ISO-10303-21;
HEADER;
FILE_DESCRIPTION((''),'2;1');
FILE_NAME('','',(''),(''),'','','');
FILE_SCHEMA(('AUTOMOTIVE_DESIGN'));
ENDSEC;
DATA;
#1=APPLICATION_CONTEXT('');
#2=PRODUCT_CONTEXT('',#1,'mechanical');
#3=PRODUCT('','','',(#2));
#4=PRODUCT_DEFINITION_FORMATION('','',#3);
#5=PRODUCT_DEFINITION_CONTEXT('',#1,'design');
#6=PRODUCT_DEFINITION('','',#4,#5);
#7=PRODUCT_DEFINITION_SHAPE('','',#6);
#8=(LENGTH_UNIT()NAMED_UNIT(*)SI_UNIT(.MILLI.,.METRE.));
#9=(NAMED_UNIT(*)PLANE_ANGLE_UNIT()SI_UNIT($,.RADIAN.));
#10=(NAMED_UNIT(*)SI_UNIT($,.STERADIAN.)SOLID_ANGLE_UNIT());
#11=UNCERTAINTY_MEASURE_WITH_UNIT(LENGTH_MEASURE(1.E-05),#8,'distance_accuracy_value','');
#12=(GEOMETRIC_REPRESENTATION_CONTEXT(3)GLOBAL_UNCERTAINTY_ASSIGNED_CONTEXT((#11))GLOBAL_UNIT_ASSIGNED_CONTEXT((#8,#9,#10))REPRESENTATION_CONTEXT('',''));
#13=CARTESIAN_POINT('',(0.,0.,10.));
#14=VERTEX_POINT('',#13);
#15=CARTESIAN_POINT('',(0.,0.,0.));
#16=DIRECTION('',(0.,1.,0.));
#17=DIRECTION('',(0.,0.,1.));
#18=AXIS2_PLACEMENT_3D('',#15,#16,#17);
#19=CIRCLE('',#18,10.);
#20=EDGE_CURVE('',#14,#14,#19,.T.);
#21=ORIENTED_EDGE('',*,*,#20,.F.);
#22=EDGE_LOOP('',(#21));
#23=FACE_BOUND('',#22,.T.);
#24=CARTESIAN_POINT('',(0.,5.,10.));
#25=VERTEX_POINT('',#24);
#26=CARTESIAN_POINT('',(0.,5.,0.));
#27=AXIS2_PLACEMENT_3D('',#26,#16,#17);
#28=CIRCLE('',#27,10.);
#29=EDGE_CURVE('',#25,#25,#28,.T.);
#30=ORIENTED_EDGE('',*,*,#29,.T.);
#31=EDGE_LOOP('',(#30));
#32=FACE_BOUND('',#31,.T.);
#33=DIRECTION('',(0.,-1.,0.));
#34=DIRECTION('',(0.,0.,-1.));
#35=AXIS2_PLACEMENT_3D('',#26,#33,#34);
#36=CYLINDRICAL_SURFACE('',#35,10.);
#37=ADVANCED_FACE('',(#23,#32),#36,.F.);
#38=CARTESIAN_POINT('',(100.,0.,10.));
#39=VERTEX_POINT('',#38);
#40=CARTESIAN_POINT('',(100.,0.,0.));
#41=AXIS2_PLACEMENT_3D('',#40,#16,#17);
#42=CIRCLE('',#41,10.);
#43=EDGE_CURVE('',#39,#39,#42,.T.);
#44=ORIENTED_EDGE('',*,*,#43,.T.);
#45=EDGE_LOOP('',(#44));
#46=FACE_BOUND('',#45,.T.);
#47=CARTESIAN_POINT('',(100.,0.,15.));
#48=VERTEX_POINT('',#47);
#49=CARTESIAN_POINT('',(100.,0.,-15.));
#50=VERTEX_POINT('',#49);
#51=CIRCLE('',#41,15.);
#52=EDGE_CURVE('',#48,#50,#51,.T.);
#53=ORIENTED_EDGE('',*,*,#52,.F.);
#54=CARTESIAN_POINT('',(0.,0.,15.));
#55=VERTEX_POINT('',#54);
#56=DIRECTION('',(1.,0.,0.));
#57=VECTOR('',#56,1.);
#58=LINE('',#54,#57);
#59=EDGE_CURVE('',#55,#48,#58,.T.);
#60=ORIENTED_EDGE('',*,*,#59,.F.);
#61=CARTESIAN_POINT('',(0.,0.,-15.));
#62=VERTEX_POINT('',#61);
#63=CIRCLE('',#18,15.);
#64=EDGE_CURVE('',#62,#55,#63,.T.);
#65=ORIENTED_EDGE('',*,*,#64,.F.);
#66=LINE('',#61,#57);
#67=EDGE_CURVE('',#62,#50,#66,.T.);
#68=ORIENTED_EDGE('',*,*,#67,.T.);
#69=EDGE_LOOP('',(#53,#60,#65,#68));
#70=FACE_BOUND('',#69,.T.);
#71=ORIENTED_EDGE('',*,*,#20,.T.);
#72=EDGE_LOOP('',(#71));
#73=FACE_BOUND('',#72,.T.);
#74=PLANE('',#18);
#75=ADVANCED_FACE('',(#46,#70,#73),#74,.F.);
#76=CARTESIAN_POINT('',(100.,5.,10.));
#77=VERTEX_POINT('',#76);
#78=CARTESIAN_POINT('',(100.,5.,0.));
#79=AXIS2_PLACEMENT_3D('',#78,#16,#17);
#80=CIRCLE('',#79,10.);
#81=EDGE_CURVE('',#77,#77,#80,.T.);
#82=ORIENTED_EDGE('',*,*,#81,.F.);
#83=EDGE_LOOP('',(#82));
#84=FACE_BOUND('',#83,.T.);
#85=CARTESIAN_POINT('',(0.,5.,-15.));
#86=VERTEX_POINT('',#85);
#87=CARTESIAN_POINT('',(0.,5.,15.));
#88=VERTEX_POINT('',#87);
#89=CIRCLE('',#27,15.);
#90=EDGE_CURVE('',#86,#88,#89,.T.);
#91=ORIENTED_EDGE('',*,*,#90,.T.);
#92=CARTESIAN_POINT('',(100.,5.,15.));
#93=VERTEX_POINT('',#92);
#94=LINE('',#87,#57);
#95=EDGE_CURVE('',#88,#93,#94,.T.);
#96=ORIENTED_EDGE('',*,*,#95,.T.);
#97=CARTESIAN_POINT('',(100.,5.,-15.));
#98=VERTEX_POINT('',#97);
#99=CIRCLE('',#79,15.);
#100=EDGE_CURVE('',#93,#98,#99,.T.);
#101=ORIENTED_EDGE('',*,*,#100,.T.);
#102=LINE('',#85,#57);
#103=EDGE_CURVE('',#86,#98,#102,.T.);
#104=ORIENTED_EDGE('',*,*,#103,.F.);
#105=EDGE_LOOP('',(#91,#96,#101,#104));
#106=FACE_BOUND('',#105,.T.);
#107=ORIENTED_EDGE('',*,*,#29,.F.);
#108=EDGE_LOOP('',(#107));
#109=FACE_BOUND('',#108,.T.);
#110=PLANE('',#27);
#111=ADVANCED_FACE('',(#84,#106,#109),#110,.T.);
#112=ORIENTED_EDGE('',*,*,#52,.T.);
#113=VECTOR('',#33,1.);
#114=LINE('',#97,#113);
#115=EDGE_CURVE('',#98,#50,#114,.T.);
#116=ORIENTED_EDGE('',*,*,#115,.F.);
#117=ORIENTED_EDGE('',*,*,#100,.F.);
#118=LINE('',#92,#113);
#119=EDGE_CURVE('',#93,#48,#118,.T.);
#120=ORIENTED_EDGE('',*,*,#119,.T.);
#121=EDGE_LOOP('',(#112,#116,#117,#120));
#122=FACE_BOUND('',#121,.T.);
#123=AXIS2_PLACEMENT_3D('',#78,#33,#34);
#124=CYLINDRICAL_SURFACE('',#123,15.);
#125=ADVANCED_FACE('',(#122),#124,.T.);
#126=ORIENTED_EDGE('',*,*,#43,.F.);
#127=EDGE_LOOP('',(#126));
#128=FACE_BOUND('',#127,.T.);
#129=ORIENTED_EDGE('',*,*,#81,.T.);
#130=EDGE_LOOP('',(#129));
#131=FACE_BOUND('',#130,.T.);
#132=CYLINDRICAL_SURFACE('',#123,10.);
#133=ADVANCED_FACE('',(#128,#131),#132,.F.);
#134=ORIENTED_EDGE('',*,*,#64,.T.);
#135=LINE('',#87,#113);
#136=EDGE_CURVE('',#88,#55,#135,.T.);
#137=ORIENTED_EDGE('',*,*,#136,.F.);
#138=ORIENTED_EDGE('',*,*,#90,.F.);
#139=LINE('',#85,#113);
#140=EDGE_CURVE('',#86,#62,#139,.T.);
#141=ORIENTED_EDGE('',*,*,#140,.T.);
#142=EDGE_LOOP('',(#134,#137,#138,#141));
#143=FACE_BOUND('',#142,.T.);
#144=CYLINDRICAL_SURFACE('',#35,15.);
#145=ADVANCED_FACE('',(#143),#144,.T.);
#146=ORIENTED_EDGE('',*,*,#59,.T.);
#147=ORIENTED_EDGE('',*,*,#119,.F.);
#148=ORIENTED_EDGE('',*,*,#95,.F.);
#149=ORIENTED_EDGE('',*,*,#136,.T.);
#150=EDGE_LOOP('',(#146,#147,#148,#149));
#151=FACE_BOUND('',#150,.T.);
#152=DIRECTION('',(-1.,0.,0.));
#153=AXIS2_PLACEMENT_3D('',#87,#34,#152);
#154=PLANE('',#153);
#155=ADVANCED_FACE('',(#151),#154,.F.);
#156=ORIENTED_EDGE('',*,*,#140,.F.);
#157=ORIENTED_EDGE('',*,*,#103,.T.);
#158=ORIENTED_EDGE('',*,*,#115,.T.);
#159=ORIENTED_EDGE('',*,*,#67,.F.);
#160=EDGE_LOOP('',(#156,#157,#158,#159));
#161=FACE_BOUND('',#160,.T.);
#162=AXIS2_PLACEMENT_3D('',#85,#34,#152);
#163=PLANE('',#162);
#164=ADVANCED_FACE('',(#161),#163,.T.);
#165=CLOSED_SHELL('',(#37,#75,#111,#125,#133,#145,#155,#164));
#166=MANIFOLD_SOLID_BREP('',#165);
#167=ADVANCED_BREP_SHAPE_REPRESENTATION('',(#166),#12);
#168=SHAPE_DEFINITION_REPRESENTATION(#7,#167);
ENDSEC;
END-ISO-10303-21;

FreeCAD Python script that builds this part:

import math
import FreeCAD as App
import Part
import Sketcher

V = App.Vector
Q = App.Units.Quantity

doc = App.newDocument("Part")
body = doc.addObject("PartDesign::Body", "Body")

sketch1 = body.newObject("Sketcher::SketchObject", "Sketch")
sketch1.AttachmentSupport = (doc.getObject("XZ_Plane"), [""])
sketch1.MapMode = "FlatFace"
sketch1.addGeometry([
    Part.LineSegment(V(0, 15, 0), V(100, 15, 0)),
    Part.ArcOfCircle(Part.Circle(V(100, 0, 0), V(0, 0, 1), 15), math.radians(-90), math.radians(90)),
    Part.LineSegment(V(100, -15, 0), V(0, -15, 0)),
    Part.ArcOfCircle(Part.Circle(V(0, 0, 0), V(0, 0, 1), 15), math.radians(90), math.radians(270)),
    Part.Circle(V(0, 0, 0), V(0, 0, 1), 10),
    Part.Circle(V(100, 0, 0), V(0, 0, 1), 10),
], False)
sketch1.addConstraint([
    Sketcher.Constraint("Tangent", 0, 2, 1, 2),
    Sketcher.Constraint("Tangent", 1, 1, 2, 1),
    Sketcher.Constraint("Tangent", 2, 2, 3, 2),
    Sketcher.Constraint("Tangent", 3, 1, 0, 1),
    Sketcher.Constraint("Horizontal", 0),
    Sketcher.Constraint("Horizontal", 2),
    Sketcher.Constraint("Coincident", 3, 3, -1, 1),
    Sketcher.Constraint("Coincident", 4, 3, -1, 1),
    Sketcher.Constraint("Coincident", 5, 3, 1, 3),
    Sketcher.Constraint("Equal", 4, 5),
    Sketcher.Constraint("Diameter", 4, Q("20 mm")),
    Sketcher.Constraint("Radius", 1, Q("15 mm")),
    Sketcher.Constraint("DistanceX", 0, 1, 0, 2, Q("100 mm")),
])
pad1 = body.newObject("PartDesign::Pad", "Pad")
pad1.Profile = sketch1
pad1.Length = 5
pad1.Reversed = True

doc.recompute()
